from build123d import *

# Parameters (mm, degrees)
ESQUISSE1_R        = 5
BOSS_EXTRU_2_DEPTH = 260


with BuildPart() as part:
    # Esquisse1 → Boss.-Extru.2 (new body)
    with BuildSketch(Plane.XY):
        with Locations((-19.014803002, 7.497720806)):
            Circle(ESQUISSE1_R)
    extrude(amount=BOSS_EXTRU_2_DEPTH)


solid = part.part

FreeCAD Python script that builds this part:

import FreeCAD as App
import Part
import Sketcher
from FreeCAD import Vector

doc = App.newDocument("Part")
body = doc.addObject("PartDesign::Body", "Body")

# Sketch on XY plane
sketch1 = body.newObject("Sketcher::SketchObject", "Sketch")
sketch1.AttachmentSupport = (doc.getObject("XY_Plane"), [""])
sketch1.MapMode = "FlatFace"
sketch1.addGeometry(Part.Circle(Vector(-19, 7, 0), Vector(0, 0, 1), 5), False)
sketch1.addConstraint([
    Sketcher.Constraint("Diameter", 0, 10.0),
    Sketcher.Constraint("DistanceY", -1, 1, 0, 3, 7.497721),
    Sketcher.Constraint("DistanceX", 0, 3, -1, 1, 19.014803),
])
pad1 = body.newObject("PartDesign::Pad", "Pad")
pad1.Profile = sketch1
pad1.Length = 260

doc.recompute()
